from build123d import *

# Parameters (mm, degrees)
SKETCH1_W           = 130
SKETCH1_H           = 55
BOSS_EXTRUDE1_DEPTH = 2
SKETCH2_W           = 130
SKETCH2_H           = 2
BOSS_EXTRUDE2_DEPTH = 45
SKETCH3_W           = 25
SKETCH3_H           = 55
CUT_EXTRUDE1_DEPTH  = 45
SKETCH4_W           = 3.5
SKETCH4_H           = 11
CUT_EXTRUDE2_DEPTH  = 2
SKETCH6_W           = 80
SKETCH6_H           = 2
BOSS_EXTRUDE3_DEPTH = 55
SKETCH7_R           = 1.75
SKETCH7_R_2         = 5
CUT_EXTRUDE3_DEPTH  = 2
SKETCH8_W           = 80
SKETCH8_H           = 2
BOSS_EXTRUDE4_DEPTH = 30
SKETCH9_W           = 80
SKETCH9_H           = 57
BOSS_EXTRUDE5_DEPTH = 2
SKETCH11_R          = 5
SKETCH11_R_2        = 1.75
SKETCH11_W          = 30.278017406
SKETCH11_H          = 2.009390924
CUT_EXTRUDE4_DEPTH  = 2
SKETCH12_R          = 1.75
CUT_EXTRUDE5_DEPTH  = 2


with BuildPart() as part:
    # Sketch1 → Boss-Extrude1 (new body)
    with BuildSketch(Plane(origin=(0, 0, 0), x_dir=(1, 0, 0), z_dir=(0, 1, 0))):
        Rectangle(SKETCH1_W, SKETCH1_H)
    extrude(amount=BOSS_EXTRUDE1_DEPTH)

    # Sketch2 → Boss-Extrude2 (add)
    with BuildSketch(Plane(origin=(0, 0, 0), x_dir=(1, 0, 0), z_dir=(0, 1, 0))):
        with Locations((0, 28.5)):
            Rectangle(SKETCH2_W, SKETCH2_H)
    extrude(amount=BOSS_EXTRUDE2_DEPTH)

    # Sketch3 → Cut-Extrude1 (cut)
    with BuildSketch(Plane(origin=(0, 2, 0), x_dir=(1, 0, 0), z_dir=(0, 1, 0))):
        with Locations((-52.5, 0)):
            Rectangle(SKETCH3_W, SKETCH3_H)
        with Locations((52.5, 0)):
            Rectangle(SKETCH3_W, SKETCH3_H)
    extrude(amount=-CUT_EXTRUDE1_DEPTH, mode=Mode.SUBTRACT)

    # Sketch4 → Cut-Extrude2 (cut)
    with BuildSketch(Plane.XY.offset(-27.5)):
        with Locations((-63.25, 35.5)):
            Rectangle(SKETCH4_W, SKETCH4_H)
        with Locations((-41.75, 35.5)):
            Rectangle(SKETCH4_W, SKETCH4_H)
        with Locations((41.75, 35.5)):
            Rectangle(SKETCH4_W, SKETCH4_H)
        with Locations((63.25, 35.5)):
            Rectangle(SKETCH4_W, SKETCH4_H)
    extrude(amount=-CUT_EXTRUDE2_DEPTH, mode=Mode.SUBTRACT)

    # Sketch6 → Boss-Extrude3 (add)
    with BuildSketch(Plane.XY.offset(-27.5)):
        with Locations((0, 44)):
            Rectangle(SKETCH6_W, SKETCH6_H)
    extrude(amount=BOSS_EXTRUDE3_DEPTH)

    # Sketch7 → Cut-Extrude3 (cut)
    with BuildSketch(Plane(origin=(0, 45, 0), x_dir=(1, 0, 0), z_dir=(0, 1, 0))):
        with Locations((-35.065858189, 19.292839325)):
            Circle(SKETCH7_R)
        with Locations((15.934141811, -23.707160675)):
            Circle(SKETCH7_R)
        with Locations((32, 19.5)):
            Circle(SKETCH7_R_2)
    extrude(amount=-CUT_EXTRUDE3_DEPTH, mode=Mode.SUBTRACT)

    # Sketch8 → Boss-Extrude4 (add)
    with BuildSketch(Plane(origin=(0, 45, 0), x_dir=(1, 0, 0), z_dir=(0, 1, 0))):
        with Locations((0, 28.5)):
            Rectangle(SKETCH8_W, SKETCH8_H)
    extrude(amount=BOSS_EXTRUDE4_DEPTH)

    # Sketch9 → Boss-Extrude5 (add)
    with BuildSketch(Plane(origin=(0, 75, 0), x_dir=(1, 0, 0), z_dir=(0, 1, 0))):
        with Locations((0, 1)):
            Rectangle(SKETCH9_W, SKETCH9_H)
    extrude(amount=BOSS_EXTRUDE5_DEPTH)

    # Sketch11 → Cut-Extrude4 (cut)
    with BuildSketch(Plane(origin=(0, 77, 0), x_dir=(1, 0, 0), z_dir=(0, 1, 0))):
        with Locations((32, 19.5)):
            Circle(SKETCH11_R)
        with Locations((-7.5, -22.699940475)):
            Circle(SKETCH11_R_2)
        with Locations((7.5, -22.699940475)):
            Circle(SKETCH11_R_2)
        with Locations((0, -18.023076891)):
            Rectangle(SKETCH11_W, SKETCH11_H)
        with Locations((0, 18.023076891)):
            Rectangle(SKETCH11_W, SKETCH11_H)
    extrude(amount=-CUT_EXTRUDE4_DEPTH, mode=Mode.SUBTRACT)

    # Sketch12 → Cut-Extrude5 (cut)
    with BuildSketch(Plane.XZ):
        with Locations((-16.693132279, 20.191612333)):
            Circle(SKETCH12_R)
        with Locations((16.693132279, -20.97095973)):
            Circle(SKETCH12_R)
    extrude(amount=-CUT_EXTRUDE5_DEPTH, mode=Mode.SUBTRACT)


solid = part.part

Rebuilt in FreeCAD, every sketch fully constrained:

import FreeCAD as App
import Part
import Sketcher
Q = App.Units.Quantity

doc = App.newDocument("Part")
params = doc.addObject("Spreadsheet::Sheet", "Params")
for row, (alias, value) in enumerate([
    ("sketch1_width", "130 mm"),
    ("sketch1_height", "55 mm"),
    ("pad1_length", "2 mm"),
    ("sketch2_width", "130 mm"),
    ("sketch2_height", "2 mm"),
    ("pad2_length", "45 mm"),
    ("sketch3_width", "25 mm"),
    ("sketch3_height", "55 mm"),
    ("pocket1_length", "45 mm"),
    ("sketch4_height", "11 mm"),
    ("sketch4_width", "3.5 mm"),
    ("pocket2_length", "2 mm"),
    ("sketch5_width", "80 mm"),
    ("sketch5_height", "2 mm"),
    ("pad3_length", "55 mm"),
    ("sketch6_diameter", "10 mm"),
    ("sketch6_diameter2", "3.5 mm"),
    ("pocket3_length", "2 mm"),
    ("sketch7_width", "80 mm"),
    ("sketch7_height", "2 mm"),
    ("pad4_length", "30 mm"),
    ("sketch8_width", "80 mm"),
    ("sketch8_height", "57 mm"),
    ("pad5_length", "2 mm"),
    ("sketch9_diameter", "10 mm"),
    ("sketch9_diameter2", "3.5 mm"),
    ("pocket4_length", "2 mm"),
    ("sketch10_diameter", "3.5 mm"),
    ("pocket5_length", "2 mm"),
], start=1):
    params.set(f"A{row}", alias)
    params.set(f"B{row}", "=" + value)
    params.setAlias(f"B{row}", alias)

body = doc.addObject("PartDesign::Body", "Body")

# Sketch on XZ plane
sketch1 = body.newObject("Sketcher::SketchObject", "Sketch")
sketch1.AttachmentSupport = (doc.getObject("XZ_Plane"), [""])
sketch1.MapMode = "FlatFace"
sketch1.addGeometry([
    Part.LineSegment(App.Vector(-65, -27.5, 0), App.Vector(-65, 27.5, 0)),
    Part.LineSegment(App.Vector(-65, 27.5, 0), App.Vector(65, 27.5, 0)),
    Part.LineSegment(App.Vector(65, 27.5, 0), App.Vector(65, -27.5, 0)),
    Part.LineSegment(App.Vector(65, -27.5, 0), App.Vector(-65, -27.5, 0)),
], False)
sketch1.addConstraint([
    Sketcher.Constraint("Coincident", 0, 2, 1, 1),
    Sketcher.Constraint("Coincident", 1, 2, 2, 1),
    Sketcher.Constraint("Coincident", 2, 2, 3, 1),
    Sketcher.Constraint("Coincident", 3, 2, 0, 1),
    Sketcher.Constraint("Vertical", 0),
    Sketcher.Constraint("Horizontal", 1),
    Sketcher.Constraint("Vertical", 2),
    Sketcher.Constraint("Horizontal", 3),
    Sketcher.Constraint("Symmetric", 0, 2, 2, 2, -1, 1),
    Sketcher.Constraint("DistanceX", 1, 1, 1, 2, Q("130 mm")),
    Sketcher.Constraint("DistanceY", 0, 1, 0, 2, Q("55 mm")),
])
sketch1.setExpression("Constraints[9]", "Params.sketch1_width")
sketch1.setExpression("Constraints[10]", "Params.sketch1_height")
pad1 = body.newObject("PartDesign::Pad", "Pad")
pad1.Profile = sketch1
pad1.setExpression("Length", "Params.pad1_length")
pad1.Reversed = True

# Sketch on XZ plane
sketch2 = body.newObject("Sketcher::SketchObject", "Sketch001")
sketch2.AttachmentSupport = (doc.getObject("XZ_Plane"), [""])
sketch2.MapMode = "FlatFace"
sketch2.addGeometry([
    Part.LineSegment(App.Vector(-65, -29.5, 0), App.Vector(-65, -27.5, 0)),
    Part.LineSegment(App.Vector(-65, -27.5, 0), App.Vector(65, -27.5, 0)),
    Part.LineSegment(App.Vector(65, -27.5, 0), App.Vector(65, -29.5, 0)),
    Part.LineSegment(App.Vector(65, -29.5, 0), App.Vector(-65, -29.5, 0)),
], False)
sketch2.addConstraint([
    Sketcher.Constraint("Coincident", 0, 2, 1, 1),
    Sketcher.Constraint("Coincident", 1, 2, 2, 1),
    Sketcher.Constraint("Coincident", 2, 2, 3, 1),
    Sketcher.Constraint("Coincident", 3, 2, 0, 1),
    Sketcher.Constraint("Vertical", 0),
    Sketcher.Constraint("Horizontal", 1),
    Sketcher.Constraint("Vertical", 2),
    Sketcher.Constraint("Horizontal", 3),
    Sketcher.Constraint("DistanceX", 1, 1, 1, 2, Q("130 mm")),
    Sketcher.Constraint("DistanceY", 0, 1, 0, 2, Q("2 mm")),
    Sketcher.Constraint("DistanceX", 0, 2, -1, 1, Q("65 mm")),
    Sketcher.Constraint("DistanceY", 0, 2, -1, 1, Q("27.5 mm")),
])
sketch2.setExpression("Constraints[8]", "Params.sketch2_width")
sketch2.setExpression("Constraints[9]", "Params.sketch2_height")
pad2 = body.newObject("PartDesign::Pad", "Pad001")
pad2.Profile = sketch2
pad2.setExpression("Length", "Params.pad2_length")
pad2.Reversed = True

# Sketch on XZ plane
sketch3 = body.newObject("Sketcher::SketchObject", "Sketch002")
sketch3.AttachmentSupport = (doc.getObject("XZ_Plane"), [""])
sketch3.MapMode = "FlatFace"
sketch3.AttachmentOffset = App.Placement(App.Vector(0, 0, -2), App.Rotation())
sketch3.addGeometry([
    Part.LineSegment(App.Vector(-65, -27.5, 0), App.Vector(-65, 27.5, 0)),  # 0
    Part.LineSegment(App.Vector(-65, 27.5, 0), App.Vector(-40, 27.5, 0)),  # 1
    Part.LineSegment(App.Vector(-40, 27.5, 0), App.Vector(-40, -27.5, 0)),  # 2
    Part.LineSegment(App.Vector(-40, -27.5, 0), App.Vector(-65, -27.5, 0)),  # 3
    Part.LineSegment(App.Vector(40, -27.5, 0), App.Vector(40, 27.5, 0)),  # 4
    Part.LineSegment(App.Vector(40, 27.5, 0), App.Vector(65, 27.5, 0)),  # 5
    Part.LineSegment(App.Vector(65, 27.5, 0), App.Vector(65, -27.5, 0)),  # 6
    Part.LineSegment(App.Vector(65, -27.5, 0), App.Vector(40, -27.5, 0)),  # 7
], False)
sketch3.addConstraint([
    Sketcher.Constraint("Coincident", 0, 2, 1, 1),
    Sketcher.Constraint("Coincident", 1, 2, 2, 1),
    Sketcher.Constraint("Coincident", 2, 2, 3, 1),
    Sketcher.Constraint("Coincident", 3, 2, 0, 1),
    Sketcher.Constraint("Coincident", 4, 2, 5, 1),
    Sketcher.Constraint("Coincident", 5, 2, 6, 1),
    Sketcher.Constraint("Coincident", 6, 2, 7, 1),
    Sketcher.Constraint("Coincident", 7, 2, 4, 1),
    Sketcher.Constraint("Vertical", 0),
    Sketcher.Constraint("Horizontal", 1),
    Sketcher.Constraint("Vertical", 2),
    Sketcher.Constraint("Horizontal", 3),
    Sketcher.Constraint("Vertical", 4),
    Sketcher.Constraint("Horizontal", 5),
    Sketcher.Constraint("Vertical", 6),
    Sketcher.Constraint("Horizontal", 7),
    Sketcher.Constraint("Symmetric", 2, 2, 4, 2, -1, 1),
    Sketcher.Constraint("Symmetric", 0, 2, 6, 2, -1, 1),
    Sketcher.Constraint("Horizontal", 1, 2, 4, 2),
    Sketcher.Constraint("DistanceX", 1, 1, 1, 2, Q("25 mm")),
    Sketcher.Constraint("DistanceY", 0, 1, 0, 2, Q("55 mm")),
    Sketcher.Constraint("DistanceX", 0, 2, -1, 1, Q("65 mm")),
])
sketch3.setExpression("Constraints[19]", "Params.sketch3_width")
sketch3.setExpression("Constraints[20]", "Params.sketch3_height")
pocket1 = body.newObject("PartDesign::Pocket", "Pocket")
pocket1.Profile = sketch3
pocket1.setExpression("Length", "Params.pocket1_length")
pocket1.Reversed = True

# Sketch on XY plane
sketch4 = body.newObject("Sketcher::SketchObject", "Sketch003")
sketch4.AttachmentSupport = (doc.getObject("XY_Plane"), [""])
sketch4.MapMode = "FlatFace"
sketch4.AttachmentOffset = App.Placement(App.Vector(0, 0, -27.5), App.Rotation())
sketch4.addGeometry([
    Part.LineSegment(App.Vector(-65, 41, 0), App.Vector(-65, 30, 0)),  # 0
    Part.LineSegment(App.Vector(-65, 30, 0), App.Vector(-61.5, 30, 0)),  # 1
    Part.LineSegment(App.Vector(-61.5, 30, 0), App.Vector(-61.5, 41, 0)),  # 2
    Part.LineSegment(App.Vector(-61.5, 41, 0), App.Vector(-65, 41, 0)),  # 3
    Part.LineSegment(App.Vector(-43.5, 41, 0), App.Vector(-43.5, 30, 0)),  # 4
    Part.LineSegment(App.Vector(-43.5, 30, 0), App.Vector(-40, 30, 0)),  # 5
    Part.LineSegment(App.Vector(-40, 30, 0), App.Vector(-40, 41, 0)),  # 6
    Part.LineSegment(App.Vector(-40, 41, 0), App.Vector(-43.5, 41, 0)),  # 7
    Part.LineSegment(App.Vector(40, 41, 0), App.Vector(40, 30, 0)),  # 8
    Part.LineSegment(App.Vector(40, 30, 0), App.Vector(43.5, 30, 0)),  # 9
    Part.LineSegment(App.Vector(43.5, 30, 0), App.Vector(43.5, 41, 0)),  # 10
    Part.LineSegment(App.Vector(43.5, 41, 0), App.Vector(40, 41, 0)),  # 11
    Part.LineSegment(App.Vector(61.5, 41, 0), App.Vector(61.5, 30, 0)),  # 12
    Part.LineSegment(App.Vector(61.5, 30, 0), App.Vector(65, 30, 0)),  # 13
    Part.LineSegment(App.Vector(65, 30, 0), App.Vector(65, 41, 0)),  # 14
    Part.LineSegment(App.Vector(65, 41, 0), App.Vector(61.5, 41, 0)),  # 15
], False)
sketch4.addConstraint([
    Sketcher.Constraint("Coincident", 0, 2, 1, 1),
    Sketcher.Constraint("Coincident", 1, 2, 2, 1),
    Sketcher.Constraint("Coincident", 2, 2, 3, 1),
    Sketcher.Constraint("Coincident", 3, 2, 0, 1),
    Sketcher.Constraint("Coincident", 4, 2, 5, 1),
    Sketcher.Constraint("Coincident", 5, 2, 6, 1),
    Sketcher.Constraint("Coincident", 6, 2, 7, 1),
    Sketcher.Constraint("Coincident", 7, 2, 4, 1),
    Sketcher.Constraint("Coincident", 8, 2, 9, 1),
    Sketcher.Constraint("Coincident", 9, 2, 10, 1),
    Sketcher.Constraint("Coincident", 10, 2, 11, 1),
    Sketcher.Constraint("Coincident", 11, 2, 8, 1),
    Sketcher.Constraint("Coincident", 12, 2, 13, 1),
    Sketcher.Constraint("Coincident", 13, 2, 14, 1),
    Sketcher.Constraint("Coincident", 14, 2, 15, 1),
    Sketcher.Constraint("Coincident", 15, 2, 12, 1),
    Sketcher.Constraint("Vertical", 0),
    Sketcher.Constraint("Horizontal", 1),
    Sketcher.Constraint("Vertical", 2),
    Sketcher.Constraint("Horizontal", 3),
    Sketcher.Constraint("Vertical", 4),
    Sketcher.Constraint("Horizontal", 5),
    Sketcher.Constraint("Vertical", 6),
    Sketcher.Constraint("Horizontal", 7),
    Sketcher.Constraint("Vertical", 8),
    Sketcher.Constraint("Horizontal", 9),
    Sketcher.Constraint("Vertical", 10),
    Sketcher.Constraint("Horizontal", 11),
    Sketcher.Constraint("Vertical", 12),
    Sketcher.Constraint("Horizontal", 13),
    Sketcher.Constraint("Vertical", 14),
    Sketcher.Constraint("Horizontal", 15),
    Sketcher.Constraint("Symmetric", 5, 2, 8, 2, -2),
    Sketcher.Constraint("Symmetric", 7, 2, 10, 2, -2),
    Sketcher.Constraint("Symmetric", 1, 2, 12, 2, -2),
    Sketcher.Constraint("Symmetric", 3, 2, 14, 2, -2),
    Sketcher.Constraint("Horizontal", 1, 2, 4, 2),
    Sketcher.Constraint("Horizontal", 3, 2, 6, 2),
    Sketcher.Constraint("Equal", 3, 5),
    Sketcher.Constraint("DistanceY", 0, 2, 0, 1, Q("11 mm")),
    Sketcher.Constraint("DistanceX", 1, 1, 1, 2, Q("3.5 mm")),
    Sketcher.Constraint("DistanceX", 0, 2, -1, 1, Q("65 mm")),
    Sketcher.Constraint("DistanceY", -1, 1, 0, 2, Q("30 mm")),
    Sketcher.Constraint("DistanceX", 5, 2, -1, 1, Q("40 mm")),
])
sketch4.setExpression("Constraints[39]", "Params.sketch4_height")
sketch4.setExpression("Constraints[40]", "Params.sketch4_width")
pocket2 = body.newObject("PartDesign::Pocket", "Pocket001")
pocket2.Profile = sketch4
pocket2.setExpression("Length", "Params.pocket2_length")

# Sketch on XY plane
sketch5 = body.newObject("Sketcher::SketchObject", "Sketch004")
sketch5.AttachmentSupport = (doc.getObject("XY_Plane"), [""])
sketch5.MapMode = "FlatFace"
sketch5.AttachmentOffset = App.Placement(App.Vector(0, 0, -27.5), App.Rotation())
sketch5.addGeometry([
    Part.LineSegment(App.Vector(-40, 45, 0), App.Vector(-40, 43, 0)),
    Part.LineSegment(App.Vector(-40, 43, 0), App.Vector(40, 43, 0)),
    Part.LineSegment(App.Vector(40, 43, 0), App.Vector(40, 45, 0)),
    Part.LineSegment(App.Vector(40, 45, 0), App.Vector(-40, 45, 0)),
], False)
sketch5.addConstraint([
    Sketcher.Constraint("Coincident", 0, 2, 1, 1),
    Sketcher.Constraint("Coincident", 1, 2, 2, 1),
    Sketcher.Constraint("Coincident", 2, 2, 3, 1),
    Sketcher.Constraint("Coincident", 3, 2, 0, 1),
    Sketcher.Constraint("Vertical", 0),
    Sketcher.Constraint("Horizontal", 1),
    Sketcher.Constraint("Vertical", 2),
    Sketcher.Constraint("Horizontal", 3),
    Sketcher.Constraint("DistanceX", 1, 1, 1, 2, Q("80 mm")),
    Sketcher.Constraint("DistanceY", 0, 2, 0, 1, Q("2 mm")),
    Sketcher.Constraint("DistanceX", 0, 2, -1, 1, Q("40 mm")),
    Sketcher.Constraint("DistanceY", -1, 1, 0, 2, Q("43 mm")),
])
sketch5.setExpression("Constraints[8]", "Params.sketch5_width")
sketch5.setExpression("Constraints[9]", "Params.sketch5_height")
pad3 = body.newObject("PartDesign::Pad", "Pad002")
pad3.Profile = sketch5
pad3.setExpression("Length", "Params.pad3_length")

# Sketch on XZ plane
sketch6 = body.newObject("Sketcher::SketchObject", "Sketch005")
sketch6.AttachmentSupport = (doc.getObject("XZ_Plane"), [""])
sketch6.MapMode = "FlatFace"
sketch6.AttachmentOffset = App.Placement(App.Vector(0, 0, -45), App.Rotation())
sketch6.addGeometry([
    Part.Circle(App.Vector(-35.065858, -19.292839, 0), App.Vector(0, 0, 1), 1.75),
    Part.Circle(App.Vector(15.934142, 23.707161, 0), App.Vector(0, 0, 1), 1.75),
    Part.Circle(App.Vector(32, -19.5, 0), App.Vector(0, 0, 1), 5),
], False)
sketch6.addConstraint([
    Sketcher.Constraint("Equal", 0, 1),
    Sketcher.Constraint("Diameter", 2, Q("10 mm")),
    Sketcher.Constraint("Diameter", 0, Q("3.5 mm")),
    Sketcher.Constraint("DistanceX", -1, 1, 2, 3, Q("32 mm")),
    Sketcher.Constraint("DistanceX", 0, 3, 1, 3, Q("51 mm")),
    Sketcher.Constraint("DistanceY", 0, 3, 1, 3, Q("43 mm")),
    Sketcher.Constraint("DistanceY", 2, 3, -1, 1, Q("19.5 mm")),
    Sketcher.Constraint("DistanceX", 0, 3, -1, 1, Q("35.065858 mm")),
    Sketcher.Constraint("DistanceY", 0, 3, -1, 1, Q("19.292839 mm")),
])
sketch6.setExpression("Constraints[1]", "Params.sketch6_diameter")
sketch6.setExpression("Constraints[2]", "Params.sketch6_diameter2")
pocket3 = body.newObject("PartDesign::Pocket", "Pocket002")
pocket3.Profile = sketch6
pocket3.setExpression("Length", "Params.pocket3_length")
pocket3.Reversed = True

# Sketch on XZ plane
sketch7 = body.newObject("Sketcher::SketchObject", "Sketch006")
sketch7.AttachmentSupport = (doc.getObject("XZ_Plane"), [""])
sketch7.MapMode = "FlatFace"
sketch7.AttachmentOffset = App.Placement(App.Vector(0, 0, -45), App.Rotation())
sketch7.addGeometry([
    Part.LineSegment(App.Vector(-40, -29.5, 0), App.Vector(-40, -27.5, 0)),
    Part.LineSegment(App.Vector(-40, -27.5, 0), App.Vector(40, -27.5, 0)),
    Part.LineSegment(App.Vector(40, -27.5, 0), App.Vector(40, -29.5, 0)),
    Part.LineSegment(App.Vector(40, -29.5, 0), App.Vector(-40, -29.5, 0)),
], False)
sketch7.addConstraint([
    Sketcher.Constraint("Coincident", 0, 2, 1, 1),
    Sketcher.Constraint("Coincident", 1, 2, 2, 1),
    Sketcher.Constraint("Coincident", 2, 2, 3, 1),
    Sketcher.Constraint("Coincident", 3, 2, 0, 1),
    Sketcher.Constraint("Vertical", 0),
    Sketcher.Constraint("Horizontal", 1),
    Sketcher.Constraint("Vertical", 2),
    Sketcher.Constraint("Horizontal", 3),
    Sketcher.Constraint("DistanceX", 1, 1, 1, 2, Q("80 mm")),
    Sketcher.Constraint("DistanceY", 0, 1, 0, 2, Q("2 mm")),
    Sketcher.Constraint("DistanceX", 0, 2, -1, 1, Q("40 mm")),
    Sketcher.Constraint("DistanceY", 0, 2, -1, 1, Q("27.5 mm")),
])
sketch7.setExpression("Constraints[8]", "Params.sketch7_width")
sketch7.setExpression("Constraints[9]", "Params.sketch7_height")
pad4 = body.newObject("PartDesign::Pad", "Pad003")
pad4.Profile = sketch7
pad4.setExpression("Length", "Params.pad4_length")
pad4.Reversed = True

# Sketch on XZ plane
sketch8 = body.newObject("Sketcher::SketchObject", "Sketch007")
sketch8.AttachmentSupport = (doc.getObject("XZ_Plane"), [""])
sketch8.MapMode = "FlatFace"
sketch8.AttachmentOffset = App.Placement(App.Vector(0, 0, -75), App.Rotation())
sketch8.addGeometry([
    Part.LineSegment(App.Vector(-40, -29.5, 0), App.Vector(-40, 27.5, 0)),
    Part.LineSegment(App.Vector(-40, 27.5, 0), App.Vector(40, 27.5, 0)),
    Part.LineSegment(App.Vector(40, 27.5, 0), App.Vector(40, -29.5, 0)),
    Part.LineSegment(App.Vector(40, -29.5, 0), App.Vector(-40, -29.5, 0)),
], False)
sketch8.addConstraint([
    Sketcher.Constraint("Coincident", 0, 2, 1, 1),
    Sketcher.Constraint("Coincident", 1, 2, 2, 1),
    Sketcher.Constraint("Coincident", 2, 2, 3, 1),
    Sketcher.Constraint("Coincident", 3, 2, 0, 1),
    Sketcher.Constraint("Vertical", 0),
    Sketcher.Constraint("Horizontal", 1),
    Sketcher.Constraint("Vertical", 2),
    Sketcher.Constraint("Horizontal", 3),
    Sketcher.Constraint("DistanceX", 1, 1, 1, 2, Q("80 mm")),
    Sketcher.Constraint("DistanceY", 0, 1, 0, 2, Q("57 mm")),
    Sketcher.Constraint("DistanceX", 0, 2, -1, 1, Q("40 mm")),
    Sketcher.Constraint("DistanceY", -1, 1, 0, 2, Q("27.5 mm")),
])
sketch8.setExpression("Constraints[8]", "Params.sketch8_width")
sketch8.setExpression("Constraints[9]", "Params.sketch8_height")
pad5 = body.newObject("PartDesign::Pad", "Pad004")
pad5.Profile = sketch8
pad5.setExpression("Length", "Params.pad5_length")
pad5.Reversed = True

# Sketch on XZ plane
sketch9 = body.newObject("Sketcher::SketchObject", "Sketch008")
sketch9.AttachmentSupport = (doc.getObject("XZ_Plane"), [""])
sketch9.MapMode = "FlatFace"
sketch9.AttachmentOffset = App.Placement(App.Vector(0, 0, -77), App.Rotation())
sketch9.addGeometry([
    Part.Circle(App.Vector(32, -19.5, 0), App.Vector(0, 0, 1), 5),  # 0
    Part.Circle(App.Vector(-7.5, 22.69994, 0), App.Vector(0, 0, 1), 1.75),  # 1
    Part.Circle(App.Vector(7.5, 22.69994, 0), App.Vector(0, 0, 1), 1.75),  # 2
    Part.LineSegment(App.Vector(-15.139009, 17.018381, 0), App.Vector(-15.139009, 19.027772, 0)),  # 3
    Part.LineSegment(App.Vector(-15.139009, 19.027772, 0), App.Vector(15.139009, 19.027772, 0)),  # 4
    Part.LineSegment(App.Vector(15.139009, 19.027772, 0), App.Vector(15.139009, 17.018381, 0)),  # 5
    Part.LineSegment(App.Vector(15.139009, 17.018381, 0), App.Vector(-15.139009, 17.018381, 0)),  # 6
    Part.LineSegment(App.Vector(-15.139009, -19.027772, 0), App.Vector(-15.139009, -17.018381, 0)),  # 7
    Part.LineSegment(App.Vector(-15.139009, -17.018381, 0), App.Vector(15.139009, -17.018381, 0)),  # 8
    Part.LineSegment(App.Vector(15.139009, -17.018381, 0), App.Vector(15.139009, -19.027772, 0)),  # 9
    Part.LineSegment(App.Vector(15.139009, -19.027772, 0), App.Vector(-15.139009, -19.027772, 0)),  # 10
], False)
sketch9.addConstraint([
    Sketcher.Constraint("Coincident", 3, 2, 4, 1),
    Sketcher.Constraint("Coincident", 4, 2, 5, 1),
    Sketcher.Constraint("Coincident", 5, 2, 6, 1),
    Sketcher.Constraint("Coincident", 6, 2, 3, 1),
    Sketcher.Constraint("Coincident", 7, 2, 8, 1),
    Sketcher.Constraint("Coincident", 8, 2, 9, 1),
    Sketcher.Constraint("Coincident", 9, 2, 10, 1),
    Sketcher.Constraint("Coincident", 10, 2, 7, 1),
    Sketcher.Constraint("Vertical", 3),
    Sketcher.Constraint("Horizontal", 4),
    Sketcher.Constraint("Vertical", 5),
    Sketcher.Constraint("Horizontal", 6),
    Sketcher.Constraint("Vertical", 7),
    Sketcher.Constraint("Horizontal", 8),
    Sketcher.Constraint("Vertical", 9),
    Sketcher.Constraint("Horizontal", 10),
    Sketcher.Constraint("Equal", 1, 2),
    Sketcher.Constraint("Symmetric", 5, 2, 7, 2, -1, 1),
    Sketcher.Constraint("Symmetric", 3, 2, 9, 2, -1, 1),
    Sketcher.Constraint("Symmetric", 1, 3, 2, 3, -2),
    Sketcher.Constraint("Vertical", 6, 2, 7, 2),
    Sketcher.Constraint("Diameter", 0, Q("10 mm")),
    Sketcher.Constraint("Diameter", 1, Q("3.5 mm")),
    Sketcher.Constraint("DistanceX", -1, 1, 0, 3, Q("32 mm")),
    Sketcher.Constraint("DistanceX", 1, 3, 2, 3, Q("15 mm")),
    Sketcher.Constraint("DistanceY", 0, 3, -1, 1, Q("19.5 mm")),
    Sketcher.Constraint("DistanceY", 3, 1, 3, 2, Q("2.009391 mm")),
    Sketcher.Constraint("DistanceX", 4, 1, 4, 2, Q("30.278017 mm")),
    Sketcher.Constraint("DistanceY", -1, 1, 1, 3, Q("22.69994 mm")),
    Sketcher.Constraint("DistanceY", -1, 1, 5, 2, Q("17.018381 mm")),
])
sketch9.setExpression("Constraints[21]", "Params.sketch9_diameter")
sketch9.setExpression("Constraints[22]", "Params.sketch9_diameter2")
pocket4 = body.newObject("PartDesign::Pocket", "Pocket003")
pocket4.Profile = sketch9
pocket4.setExpression("Length", "Params.pocket4_length")
pocket4.Reversed = True

# Sketch on XZ plane
sketch10 = body.newObject("Sketcher::SketchObject", "Sketch009")
sketch10.AttachmentSupport = (doc.getObject("XZ_Plane"), [""])
sketch10.MapMode = "FlatFace"
sketch10.addGeometry([
    Part.Circle(App.Vector(-16.693132, 20.191612, 0), App.Vector(0, 0, 1), 1.75),
    Part.Circle(App.Vector(16.693132, -20.97096, 0), App.Vector(0, 0, 1), 1.75),
], False)
sketch10.addConstraint([
    Sketcher.Constraint("Equal", 0, 1),
    Sketcher.Constraint("Diameter", 0, Q("3.5 mm")),
    Sketcher.Constraint("DistanceY", 1, 3, -1, 1, Q("20.97096 mm")),
    Sketcher.Constraint("DistanceX", 0, 3, -1, 1, Q("16.693132 mm")),
    Sketcher.Constraint("DistanceY", -1, 1, 0, 3, Q("20.191612 mm")),
    Sketcher.Constraint("DistanceX", -1, 1, 1, 3, Q("16.693132 mm")),
])
sketch10.setExpression("Constraints[1]", "Params.sketch10_diameter")
pocket5 = body.newObject("PartDesign::Pocket", "Pocket004")
pocket5.Profile = sketch10
pocket5.setExpression("Length", "Params.pocket5_length")

doc.recompute()
